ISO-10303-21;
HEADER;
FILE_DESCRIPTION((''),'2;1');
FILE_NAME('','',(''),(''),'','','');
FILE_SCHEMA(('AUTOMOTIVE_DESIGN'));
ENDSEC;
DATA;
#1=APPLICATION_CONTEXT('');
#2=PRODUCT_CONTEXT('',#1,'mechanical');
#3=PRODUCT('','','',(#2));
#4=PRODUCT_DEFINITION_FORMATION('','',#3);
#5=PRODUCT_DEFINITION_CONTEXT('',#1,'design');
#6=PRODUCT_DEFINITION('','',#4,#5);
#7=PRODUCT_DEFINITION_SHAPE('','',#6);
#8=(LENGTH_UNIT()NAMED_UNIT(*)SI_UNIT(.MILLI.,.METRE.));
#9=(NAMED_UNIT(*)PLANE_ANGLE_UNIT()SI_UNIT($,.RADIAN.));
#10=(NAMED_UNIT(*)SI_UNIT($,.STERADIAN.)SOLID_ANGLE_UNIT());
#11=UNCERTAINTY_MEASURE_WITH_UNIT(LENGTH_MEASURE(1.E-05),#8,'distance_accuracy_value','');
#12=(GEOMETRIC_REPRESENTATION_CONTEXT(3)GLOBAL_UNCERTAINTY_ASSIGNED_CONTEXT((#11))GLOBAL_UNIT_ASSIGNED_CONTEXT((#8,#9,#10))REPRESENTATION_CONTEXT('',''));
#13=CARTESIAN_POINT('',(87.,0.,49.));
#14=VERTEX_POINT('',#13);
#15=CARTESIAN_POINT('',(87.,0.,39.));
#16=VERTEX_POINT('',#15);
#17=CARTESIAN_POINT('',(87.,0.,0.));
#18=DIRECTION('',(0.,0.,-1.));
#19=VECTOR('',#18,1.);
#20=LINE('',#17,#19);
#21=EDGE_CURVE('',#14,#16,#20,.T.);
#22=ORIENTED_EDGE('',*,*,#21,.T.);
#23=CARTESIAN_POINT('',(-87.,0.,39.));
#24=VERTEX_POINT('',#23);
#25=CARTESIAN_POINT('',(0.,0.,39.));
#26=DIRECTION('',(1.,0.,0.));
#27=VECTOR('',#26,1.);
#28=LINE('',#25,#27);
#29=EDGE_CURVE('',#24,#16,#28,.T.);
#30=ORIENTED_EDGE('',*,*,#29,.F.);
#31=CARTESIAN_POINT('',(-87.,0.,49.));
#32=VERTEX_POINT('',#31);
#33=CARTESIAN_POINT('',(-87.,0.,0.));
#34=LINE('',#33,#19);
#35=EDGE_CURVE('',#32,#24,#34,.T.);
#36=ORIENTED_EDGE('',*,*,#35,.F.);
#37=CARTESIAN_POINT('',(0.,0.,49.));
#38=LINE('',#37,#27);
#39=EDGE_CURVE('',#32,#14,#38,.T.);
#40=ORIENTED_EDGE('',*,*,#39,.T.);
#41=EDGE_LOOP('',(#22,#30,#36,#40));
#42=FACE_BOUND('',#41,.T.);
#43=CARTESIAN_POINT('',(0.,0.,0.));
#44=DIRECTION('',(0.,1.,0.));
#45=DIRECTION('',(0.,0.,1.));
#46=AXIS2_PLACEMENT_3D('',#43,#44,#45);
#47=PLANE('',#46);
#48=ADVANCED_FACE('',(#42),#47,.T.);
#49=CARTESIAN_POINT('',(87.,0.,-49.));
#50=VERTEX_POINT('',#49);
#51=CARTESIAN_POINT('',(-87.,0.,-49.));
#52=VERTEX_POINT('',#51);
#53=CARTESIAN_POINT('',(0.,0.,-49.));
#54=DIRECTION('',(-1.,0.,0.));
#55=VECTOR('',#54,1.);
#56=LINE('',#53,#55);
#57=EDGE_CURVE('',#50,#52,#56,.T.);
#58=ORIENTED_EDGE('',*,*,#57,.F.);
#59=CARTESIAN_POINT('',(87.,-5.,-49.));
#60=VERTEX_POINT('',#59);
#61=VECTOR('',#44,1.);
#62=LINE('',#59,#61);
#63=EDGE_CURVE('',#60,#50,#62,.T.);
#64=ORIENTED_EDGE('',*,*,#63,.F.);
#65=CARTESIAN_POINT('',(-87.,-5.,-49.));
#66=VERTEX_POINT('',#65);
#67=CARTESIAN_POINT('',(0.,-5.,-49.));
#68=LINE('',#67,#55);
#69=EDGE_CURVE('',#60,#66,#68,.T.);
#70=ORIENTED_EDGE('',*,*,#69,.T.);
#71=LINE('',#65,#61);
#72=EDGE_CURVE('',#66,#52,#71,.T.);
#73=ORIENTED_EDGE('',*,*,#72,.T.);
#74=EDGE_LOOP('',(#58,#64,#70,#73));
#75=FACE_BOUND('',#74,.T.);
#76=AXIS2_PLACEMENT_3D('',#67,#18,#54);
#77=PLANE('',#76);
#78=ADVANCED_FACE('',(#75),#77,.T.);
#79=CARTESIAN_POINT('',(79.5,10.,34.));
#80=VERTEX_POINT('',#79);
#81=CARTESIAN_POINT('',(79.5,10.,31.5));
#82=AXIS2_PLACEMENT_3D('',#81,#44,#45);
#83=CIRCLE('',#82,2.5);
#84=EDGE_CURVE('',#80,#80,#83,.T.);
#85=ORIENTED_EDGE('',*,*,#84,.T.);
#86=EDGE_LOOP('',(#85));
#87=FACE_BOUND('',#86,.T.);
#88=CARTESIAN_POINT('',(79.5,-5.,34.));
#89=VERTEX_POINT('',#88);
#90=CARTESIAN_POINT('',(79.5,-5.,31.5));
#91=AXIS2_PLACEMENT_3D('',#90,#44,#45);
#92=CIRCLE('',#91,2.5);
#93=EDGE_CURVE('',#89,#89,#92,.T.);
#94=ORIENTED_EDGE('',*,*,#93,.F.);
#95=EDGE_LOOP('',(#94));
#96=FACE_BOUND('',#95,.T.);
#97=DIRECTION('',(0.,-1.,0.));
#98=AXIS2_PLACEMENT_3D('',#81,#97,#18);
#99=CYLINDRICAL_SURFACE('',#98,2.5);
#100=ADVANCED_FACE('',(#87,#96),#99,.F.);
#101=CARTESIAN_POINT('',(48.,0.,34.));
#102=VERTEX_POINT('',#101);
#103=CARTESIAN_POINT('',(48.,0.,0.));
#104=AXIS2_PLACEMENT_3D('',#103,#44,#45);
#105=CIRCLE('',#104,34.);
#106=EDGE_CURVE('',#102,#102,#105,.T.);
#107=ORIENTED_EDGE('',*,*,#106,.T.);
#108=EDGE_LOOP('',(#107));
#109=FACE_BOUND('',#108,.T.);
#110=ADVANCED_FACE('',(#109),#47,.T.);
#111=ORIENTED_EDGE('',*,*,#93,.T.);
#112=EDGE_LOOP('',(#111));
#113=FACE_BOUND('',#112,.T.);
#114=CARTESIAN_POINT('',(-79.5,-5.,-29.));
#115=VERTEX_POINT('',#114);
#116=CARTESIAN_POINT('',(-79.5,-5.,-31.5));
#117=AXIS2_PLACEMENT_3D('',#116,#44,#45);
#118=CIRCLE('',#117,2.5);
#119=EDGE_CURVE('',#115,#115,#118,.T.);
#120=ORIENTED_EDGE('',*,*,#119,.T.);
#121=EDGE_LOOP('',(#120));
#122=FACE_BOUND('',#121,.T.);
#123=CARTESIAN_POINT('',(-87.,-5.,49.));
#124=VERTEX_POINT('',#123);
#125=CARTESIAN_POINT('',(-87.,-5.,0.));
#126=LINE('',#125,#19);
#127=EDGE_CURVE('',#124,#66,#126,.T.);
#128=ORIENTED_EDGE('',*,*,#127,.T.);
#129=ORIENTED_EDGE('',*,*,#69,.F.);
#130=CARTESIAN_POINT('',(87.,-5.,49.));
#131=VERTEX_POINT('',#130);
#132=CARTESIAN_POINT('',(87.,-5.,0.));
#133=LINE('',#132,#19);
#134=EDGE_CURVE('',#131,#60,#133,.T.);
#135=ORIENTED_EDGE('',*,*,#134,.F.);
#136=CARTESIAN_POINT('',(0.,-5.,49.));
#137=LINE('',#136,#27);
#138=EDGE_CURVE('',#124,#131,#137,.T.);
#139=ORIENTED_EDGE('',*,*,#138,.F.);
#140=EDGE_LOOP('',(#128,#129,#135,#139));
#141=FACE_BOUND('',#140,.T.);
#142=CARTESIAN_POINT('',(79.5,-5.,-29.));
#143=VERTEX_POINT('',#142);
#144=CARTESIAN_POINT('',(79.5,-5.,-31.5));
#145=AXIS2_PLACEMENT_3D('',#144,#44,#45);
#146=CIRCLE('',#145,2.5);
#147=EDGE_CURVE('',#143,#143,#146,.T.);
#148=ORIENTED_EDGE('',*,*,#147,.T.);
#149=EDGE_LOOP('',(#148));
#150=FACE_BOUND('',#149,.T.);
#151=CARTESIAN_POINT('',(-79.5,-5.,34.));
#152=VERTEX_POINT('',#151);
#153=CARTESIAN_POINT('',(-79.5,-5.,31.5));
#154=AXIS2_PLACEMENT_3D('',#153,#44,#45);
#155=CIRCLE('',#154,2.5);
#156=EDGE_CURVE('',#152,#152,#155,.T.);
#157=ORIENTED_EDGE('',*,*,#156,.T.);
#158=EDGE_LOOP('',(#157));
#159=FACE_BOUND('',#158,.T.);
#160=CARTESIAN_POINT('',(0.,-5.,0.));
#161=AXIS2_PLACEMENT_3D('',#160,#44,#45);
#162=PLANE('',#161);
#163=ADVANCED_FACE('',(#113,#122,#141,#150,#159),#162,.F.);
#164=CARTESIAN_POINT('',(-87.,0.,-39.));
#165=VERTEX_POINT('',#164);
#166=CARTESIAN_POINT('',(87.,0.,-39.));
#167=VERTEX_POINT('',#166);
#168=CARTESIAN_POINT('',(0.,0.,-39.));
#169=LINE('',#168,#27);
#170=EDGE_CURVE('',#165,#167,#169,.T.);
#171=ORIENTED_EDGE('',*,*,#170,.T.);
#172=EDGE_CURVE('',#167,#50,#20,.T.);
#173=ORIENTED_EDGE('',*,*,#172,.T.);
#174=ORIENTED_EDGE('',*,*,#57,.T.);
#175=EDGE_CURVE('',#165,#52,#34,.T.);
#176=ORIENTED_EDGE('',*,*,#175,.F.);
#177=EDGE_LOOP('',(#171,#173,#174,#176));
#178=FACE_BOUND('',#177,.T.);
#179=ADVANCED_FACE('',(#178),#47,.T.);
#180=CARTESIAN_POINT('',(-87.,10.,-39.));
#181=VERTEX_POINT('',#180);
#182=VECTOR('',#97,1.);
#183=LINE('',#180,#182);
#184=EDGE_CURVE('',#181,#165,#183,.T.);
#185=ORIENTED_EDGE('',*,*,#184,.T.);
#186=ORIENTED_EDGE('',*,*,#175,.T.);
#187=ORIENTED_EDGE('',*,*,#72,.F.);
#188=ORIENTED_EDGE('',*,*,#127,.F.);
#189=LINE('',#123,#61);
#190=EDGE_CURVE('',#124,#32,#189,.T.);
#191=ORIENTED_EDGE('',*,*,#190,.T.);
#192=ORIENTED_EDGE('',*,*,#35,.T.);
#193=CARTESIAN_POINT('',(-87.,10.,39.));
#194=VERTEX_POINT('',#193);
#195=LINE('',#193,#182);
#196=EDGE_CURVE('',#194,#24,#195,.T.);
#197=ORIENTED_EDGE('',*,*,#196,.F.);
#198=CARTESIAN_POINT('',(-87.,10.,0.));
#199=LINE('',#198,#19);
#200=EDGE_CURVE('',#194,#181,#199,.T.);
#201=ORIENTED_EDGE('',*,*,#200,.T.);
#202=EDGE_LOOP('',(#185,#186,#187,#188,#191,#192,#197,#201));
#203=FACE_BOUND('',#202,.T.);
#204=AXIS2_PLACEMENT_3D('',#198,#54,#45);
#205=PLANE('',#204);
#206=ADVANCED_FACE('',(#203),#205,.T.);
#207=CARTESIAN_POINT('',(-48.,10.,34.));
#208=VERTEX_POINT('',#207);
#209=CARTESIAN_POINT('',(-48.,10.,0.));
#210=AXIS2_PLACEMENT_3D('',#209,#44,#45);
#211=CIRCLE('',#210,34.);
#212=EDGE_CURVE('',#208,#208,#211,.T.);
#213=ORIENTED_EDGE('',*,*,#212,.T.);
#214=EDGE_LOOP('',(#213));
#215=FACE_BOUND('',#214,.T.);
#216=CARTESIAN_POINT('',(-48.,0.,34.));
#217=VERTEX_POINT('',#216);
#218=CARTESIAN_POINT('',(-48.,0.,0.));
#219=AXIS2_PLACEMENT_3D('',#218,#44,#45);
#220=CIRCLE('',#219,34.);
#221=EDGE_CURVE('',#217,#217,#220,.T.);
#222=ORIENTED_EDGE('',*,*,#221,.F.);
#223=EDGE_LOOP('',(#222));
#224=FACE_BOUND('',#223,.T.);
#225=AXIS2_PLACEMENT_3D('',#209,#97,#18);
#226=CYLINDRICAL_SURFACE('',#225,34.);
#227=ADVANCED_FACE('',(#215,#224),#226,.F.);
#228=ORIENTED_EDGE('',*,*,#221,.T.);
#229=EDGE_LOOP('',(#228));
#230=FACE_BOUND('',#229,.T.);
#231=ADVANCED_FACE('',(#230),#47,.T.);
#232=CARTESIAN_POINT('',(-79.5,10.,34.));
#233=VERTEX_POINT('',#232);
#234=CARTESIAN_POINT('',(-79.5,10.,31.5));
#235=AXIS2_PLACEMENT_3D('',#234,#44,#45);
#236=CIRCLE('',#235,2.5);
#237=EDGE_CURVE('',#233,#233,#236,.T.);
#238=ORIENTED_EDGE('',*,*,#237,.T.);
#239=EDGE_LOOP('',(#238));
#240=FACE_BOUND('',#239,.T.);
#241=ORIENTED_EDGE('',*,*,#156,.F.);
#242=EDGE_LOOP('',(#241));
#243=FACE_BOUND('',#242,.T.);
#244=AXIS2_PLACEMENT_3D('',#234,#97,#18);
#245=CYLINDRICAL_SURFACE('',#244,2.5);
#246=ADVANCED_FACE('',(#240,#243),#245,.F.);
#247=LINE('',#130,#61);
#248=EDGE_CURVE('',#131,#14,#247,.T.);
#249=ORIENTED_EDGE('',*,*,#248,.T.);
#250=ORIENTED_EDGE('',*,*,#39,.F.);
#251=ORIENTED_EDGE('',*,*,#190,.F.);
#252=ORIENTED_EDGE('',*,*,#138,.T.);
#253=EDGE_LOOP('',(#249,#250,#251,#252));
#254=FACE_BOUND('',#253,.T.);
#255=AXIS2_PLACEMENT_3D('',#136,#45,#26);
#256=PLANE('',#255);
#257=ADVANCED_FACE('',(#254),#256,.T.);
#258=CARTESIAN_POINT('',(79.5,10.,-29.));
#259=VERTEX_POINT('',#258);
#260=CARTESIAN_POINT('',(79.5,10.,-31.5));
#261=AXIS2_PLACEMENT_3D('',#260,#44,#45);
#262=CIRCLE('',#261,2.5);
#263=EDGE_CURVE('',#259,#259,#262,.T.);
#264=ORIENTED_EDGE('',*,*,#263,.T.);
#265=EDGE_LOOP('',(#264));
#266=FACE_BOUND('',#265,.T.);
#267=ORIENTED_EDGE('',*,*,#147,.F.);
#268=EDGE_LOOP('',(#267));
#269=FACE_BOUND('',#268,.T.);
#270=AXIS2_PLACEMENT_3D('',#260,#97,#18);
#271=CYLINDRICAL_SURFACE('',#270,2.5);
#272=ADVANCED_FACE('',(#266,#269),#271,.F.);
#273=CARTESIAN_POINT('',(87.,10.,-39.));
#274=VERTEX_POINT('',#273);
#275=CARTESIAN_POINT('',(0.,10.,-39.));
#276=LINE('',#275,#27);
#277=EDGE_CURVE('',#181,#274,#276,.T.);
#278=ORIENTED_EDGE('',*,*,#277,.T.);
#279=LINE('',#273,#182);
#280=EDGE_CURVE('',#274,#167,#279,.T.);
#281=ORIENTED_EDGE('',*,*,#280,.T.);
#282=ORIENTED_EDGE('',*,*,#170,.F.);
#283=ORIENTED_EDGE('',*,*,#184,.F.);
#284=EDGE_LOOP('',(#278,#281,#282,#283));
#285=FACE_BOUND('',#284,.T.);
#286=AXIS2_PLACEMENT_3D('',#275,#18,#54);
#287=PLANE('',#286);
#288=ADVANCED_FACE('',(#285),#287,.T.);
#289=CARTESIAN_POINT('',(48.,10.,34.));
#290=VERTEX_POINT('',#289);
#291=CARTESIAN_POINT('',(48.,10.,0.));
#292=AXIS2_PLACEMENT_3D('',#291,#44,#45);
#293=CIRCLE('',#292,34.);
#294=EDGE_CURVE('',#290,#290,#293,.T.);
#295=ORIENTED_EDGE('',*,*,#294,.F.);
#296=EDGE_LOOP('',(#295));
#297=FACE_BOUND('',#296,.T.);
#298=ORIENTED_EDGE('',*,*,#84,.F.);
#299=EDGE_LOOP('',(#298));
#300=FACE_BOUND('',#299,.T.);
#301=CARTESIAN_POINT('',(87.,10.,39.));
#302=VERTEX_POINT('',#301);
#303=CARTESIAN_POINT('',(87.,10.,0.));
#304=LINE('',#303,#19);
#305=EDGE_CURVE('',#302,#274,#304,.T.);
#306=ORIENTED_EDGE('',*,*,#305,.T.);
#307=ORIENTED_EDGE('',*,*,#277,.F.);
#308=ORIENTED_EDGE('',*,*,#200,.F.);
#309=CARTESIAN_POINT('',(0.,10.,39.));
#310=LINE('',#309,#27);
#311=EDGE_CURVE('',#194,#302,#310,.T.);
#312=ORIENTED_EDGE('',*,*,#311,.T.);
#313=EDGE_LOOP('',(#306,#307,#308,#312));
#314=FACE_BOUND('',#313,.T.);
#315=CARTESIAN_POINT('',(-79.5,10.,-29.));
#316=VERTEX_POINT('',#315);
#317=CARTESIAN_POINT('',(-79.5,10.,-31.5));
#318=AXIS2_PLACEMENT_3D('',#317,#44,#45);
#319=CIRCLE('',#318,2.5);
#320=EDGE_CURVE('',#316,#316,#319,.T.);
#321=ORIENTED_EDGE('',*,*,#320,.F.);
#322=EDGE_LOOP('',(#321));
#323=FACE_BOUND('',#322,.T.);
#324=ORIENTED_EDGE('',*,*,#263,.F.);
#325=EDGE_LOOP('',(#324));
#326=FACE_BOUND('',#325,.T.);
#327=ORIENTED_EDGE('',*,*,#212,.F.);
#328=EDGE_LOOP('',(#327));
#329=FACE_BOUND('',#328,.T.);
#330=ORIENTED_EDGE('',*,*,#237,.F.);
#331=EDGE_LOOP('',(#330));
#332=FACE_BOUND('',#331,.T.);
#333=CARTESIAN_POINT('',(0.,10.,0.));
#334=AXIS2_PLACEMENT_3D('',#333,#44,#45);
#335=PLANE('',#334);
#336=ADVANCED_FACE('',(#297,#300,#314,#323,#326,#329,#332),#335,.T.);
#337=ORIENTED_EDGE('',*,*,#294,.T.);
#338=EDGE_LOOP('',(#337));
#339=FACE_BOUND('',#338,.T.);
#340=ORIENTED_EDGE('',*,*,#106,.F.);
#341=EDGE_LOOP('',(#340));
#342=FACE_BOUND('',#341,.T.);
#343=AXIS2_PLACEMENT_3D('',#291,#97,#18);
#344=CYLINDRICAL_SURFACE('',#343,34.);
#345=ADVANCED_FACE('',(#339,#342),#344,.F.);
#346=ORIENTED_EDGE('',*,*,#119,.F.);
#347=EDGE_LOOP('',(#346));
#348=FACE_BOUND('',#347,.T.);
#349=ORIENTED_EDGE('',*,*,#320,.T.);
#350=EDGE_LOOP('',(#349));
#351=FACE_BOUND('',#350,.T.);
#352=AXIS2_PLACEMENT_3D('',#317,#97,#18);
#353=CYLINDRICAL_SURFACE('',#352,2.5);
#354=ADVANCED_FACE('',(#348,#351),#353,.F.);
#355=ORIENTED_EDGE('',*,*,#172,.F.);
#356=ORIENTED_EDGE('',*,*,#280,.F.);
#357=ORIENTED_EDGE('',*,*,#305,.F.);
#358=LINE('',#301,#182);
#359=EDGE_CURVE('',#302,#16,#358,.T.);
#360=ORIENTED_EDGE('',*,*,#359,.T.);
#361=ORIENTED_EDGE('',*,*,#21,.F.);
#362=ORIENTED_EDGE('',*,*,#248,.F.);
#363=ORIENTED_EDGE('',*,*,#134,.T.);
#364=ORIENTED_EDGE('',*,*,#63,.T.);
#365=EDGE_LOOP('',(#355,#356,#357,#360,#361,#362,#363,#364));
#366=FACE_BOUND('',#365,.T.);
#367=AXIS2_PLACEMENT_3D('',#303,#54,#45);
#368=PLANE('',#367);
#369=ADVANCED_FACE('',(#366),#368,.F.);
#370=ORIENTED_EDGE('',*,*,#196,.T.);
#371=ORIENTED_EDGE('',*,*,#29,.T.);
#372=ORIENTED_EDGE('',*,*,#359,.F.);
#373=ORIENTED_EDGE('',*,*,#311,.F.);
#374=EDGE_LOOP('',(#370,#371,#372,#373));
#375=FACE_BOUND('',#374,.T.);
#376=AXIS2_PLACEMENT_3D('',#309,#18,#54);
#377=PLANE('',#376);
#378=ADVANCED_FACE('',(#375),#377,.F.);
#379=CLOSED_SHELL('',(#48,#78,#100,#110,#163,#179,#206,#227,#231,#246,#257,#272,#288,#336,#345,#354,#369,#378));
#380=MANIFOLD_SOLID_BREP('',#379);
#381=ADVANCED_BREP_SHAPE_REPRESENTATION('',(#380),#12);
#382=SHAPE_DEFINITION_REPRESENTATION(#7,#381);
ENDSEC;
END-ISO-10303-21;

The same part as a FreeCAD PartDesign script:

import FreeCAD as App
import Part
import Sketcher

V = App.Vector
Q = App.Units.Quantity


def add_polygon(sketch, points):
    """Adds a closed chain of lines whose ends are joined by coincident constraints."""
    first, n = sketch.GeometryCount, len(points)
    for a, b in zip(points, points[1:] + points[:1]):
        sketch.addGeometry(Part.LineSegment(App.Vector(*a, 0), App.Vector(*b, 0)), False)
    for i in range(n):
        sketch.addConstraint(Sketcher.Constraint("Coincident", first + i, 2, first + (i + 1) % n, 1))

doc = App.newDocument("Part")
body = doc.addObject("PartDesign::Body", "Body")

# Sketch on XZ plane
sketch1 = doc.addObject("Sketcher::SketchObject", "Sketch")
body.addObject(sketch1)
sketch1.AttachmentSupport = (doc.XZ_Plane, [""])
sketch1.MapMode = "FlatFace"
add_polygon(sketch1, [(-87, -39), (-87, 39), (87, 39), (87, -39)])  # lines 0-3
sketch1.addGeometry(Part.Circle(V(-79.5, 31.5, 0), V(0, 0, 1), 2.5), False)  # 4
sketch1.addGeometry(Part.Circle(V(79.5, 31.5, 0), V(0, 0, 1), 2.5), False)  # 5
sketch1.addGeometry(Part.Circle(V(-48, 0, 0), V(0, 0, 1), 34), False)  # 6
sketch1.addGeometry(Part.Circle(V(-79.5, -31.5, 0), V(0, 0, 1), 2.5), False)  # 7
sketch1.addGeometry(Part.Circle(V(48, 0, 0), V(0, 0, 1), 34), False)  # 8
sketch1.addGeometry(Part.Circle(V(79.5, -31.5, 0), V(0, 0, 1), 2.5), False)  # 9
sketch1.addConstraint(Sketcher.Constraint("Vertical", 0))
sketch1.addConstraint(Sketcher.Constraint("Horizontal", 1))
sketch1.addConstraint(Sketcher.Constraint("Vertical", 2))
sketch1.addConstraint(Sketcher.Constraint("Horizontal", 3))
sketch1.addConstraint(Sketcher.Constraint("Equal", 4, 5))
sketch1.addConstraint(Sketcher.Constraint("Equal", 5, 7))
sketch1.addConstraint(Sketcher.Constraint("Equal", 6, 8))
sketch1.addConstraint(Sketcher.Constraint("Equal", 7, 9))
sketch1.addConstraint(Sketcher.Constraint("Symmetric", 5, 3, 7, 3, -1, 1))
sketch1.addConstraint(Sketcher.Constraint("Symmetric", 6, 3, 8, 3, -1, 1))
sketch1.addConstraint(Sketcher.Constraint("Symmetric", 4, 3, 9, 3, -1, 1))
sketch1.addConstraint(Sketcher.Constraint("Symmetric", 0, 2, 2, 2, -1, 1))
sketch1.addConstraint(Sketcher.Constraint("Symmetric", 4, 3, 5, 3, -2))
sketch1.addConstraint(Sketcher.Constraint("PointOnObject", 6, 3, -1))
sketch1.addConstraint(Sketcher.Constraint("Diameter", 4, Q("5 mm")))
sketch1.addConstraint(Sketcher.Constraint("Diameter", 6, Q("68 mm")))
sketch1.addConstraint(Sketcher.Constraint("DistanceX", 1, 1, 1, 2, Q("174 mm")))
sketch1.addConstraint(Sketcher.Constraint("DistanceY", 0, 1, 0, 2, Q("78 mm")))
sketch1.addConstraint(Sketcher.Constraint("DistanceX", 6, 3, -1, 1, Q("48 mm")))
sketch1.addConstraint(Sketcher.Constraint("DistanceX", 4, 3, 5, 3, Q("159 mm")))
sketch1.addConstraint(Sketcher.Constraint("DistanceY", 7, 3, 4, 3, Q("63 mm")))
pad1 = doc.addObject("PartDesign::Pad", "Pad")
body.addObject(pad1)
pad1.Profile = sketch1
pad1.Length = 10
pad1.Reversed = True

# Sketch on XZ plane
sketch2 = doc.addObject("Sketcher::SketchObject", "Sketch001")
body.addObject(sketch2)
sketch2.AttachmentSupport = (doc.XZ_Plane, [""])
sketch2.MapMode = "FlatFace"
sketch2.AttachmentOffset = App.Placement(V(0, 0, 5), App.Rotation())
add_polygon(sketch2, [(-87, 49), (87, 49), (87, -49), (-87, -49)])  # lines 0-3
sketch2.addGeometry(Part.Circle(V(-79.5, 31.5, 0), V(0, 0, 1), 2.5), False)  # 4
sketch2.addGeometry(Part.Circle(V(79.5, 31.5, 0), V(0, 0, 1), 2.5), False)  # 5
sketch2.addGeometry(Part.Circle(V(-79.5, -31.5, 0), V(0, 0, 1), 2.5), False)  # 6
sketch2.addGeometry(Part.Circle(V(79.5, -31.5, 0), V(0, 0, 1), 2.5), False)  # 7
sketch2.addConstraint(Sketcher.Constraint("Horizontal", 0))
sketch2.addConstraint(Sketcher.Constraint("Vertical", 1))
sketch2.addConstraint(Sketcher.Constraint("Horizontal", 2))
sketch2.addConstraint(Sketcher.Constraint("Vertical", 3))
sketch2.addConstraint(Sketcher.Constraint("Equal", 4, 5))
sketch2.addConstraint(Sketcher.Constraint("Equal", 5, 6))
sketch2.addConstraint(Sketcher.Constraint("Equal", 6, 7))
sketch2.addConstraint(Sketcher.Constraint("Symmetric", 5, 3, 6, 3, -1, 1))
sketch2.addConstraint(Sketcher.Constraint("Symmetric", 4, 3, 7, 3, -1, 1))
sketch2.addConstraint(Sketcher.Constraint("Symmetric", 0, 2, 2, 2, -1, 1))
sketch2.addConstraint(Sketcher.Constraint("Symmetric", 4, 3, 5, 3, -2))
sketch2.addConstraint(Sketcher.Constraint("Diameter", 4, Q("5 mm")))
sketch2.addConstraint(Sketcher.Constraint("DistanceX", 0, 1, 0, 2, Q("174 mm")))
sketch2.addConstraint(Sketcher.Constraint("DistanceY", 1, 2, 1, 1, Q("98 mm")))
sketch2.addConstraint(Sketcher.Constraint("DistanceX", 4, 3, 5, 3, Q("159 mm")))
sketch2.addConstraint(Sketcher.Constraint("DistanceY", 6, 3, 4, 3, Q("63 mm")))
pad2 = doc.addObject("PartDesign::Pad", "Pad001")
body.addObject(pad2)
pad2.Profile = sketch2
pad2.Length = 5
pad2.Reversed = True

doc.recompute()
